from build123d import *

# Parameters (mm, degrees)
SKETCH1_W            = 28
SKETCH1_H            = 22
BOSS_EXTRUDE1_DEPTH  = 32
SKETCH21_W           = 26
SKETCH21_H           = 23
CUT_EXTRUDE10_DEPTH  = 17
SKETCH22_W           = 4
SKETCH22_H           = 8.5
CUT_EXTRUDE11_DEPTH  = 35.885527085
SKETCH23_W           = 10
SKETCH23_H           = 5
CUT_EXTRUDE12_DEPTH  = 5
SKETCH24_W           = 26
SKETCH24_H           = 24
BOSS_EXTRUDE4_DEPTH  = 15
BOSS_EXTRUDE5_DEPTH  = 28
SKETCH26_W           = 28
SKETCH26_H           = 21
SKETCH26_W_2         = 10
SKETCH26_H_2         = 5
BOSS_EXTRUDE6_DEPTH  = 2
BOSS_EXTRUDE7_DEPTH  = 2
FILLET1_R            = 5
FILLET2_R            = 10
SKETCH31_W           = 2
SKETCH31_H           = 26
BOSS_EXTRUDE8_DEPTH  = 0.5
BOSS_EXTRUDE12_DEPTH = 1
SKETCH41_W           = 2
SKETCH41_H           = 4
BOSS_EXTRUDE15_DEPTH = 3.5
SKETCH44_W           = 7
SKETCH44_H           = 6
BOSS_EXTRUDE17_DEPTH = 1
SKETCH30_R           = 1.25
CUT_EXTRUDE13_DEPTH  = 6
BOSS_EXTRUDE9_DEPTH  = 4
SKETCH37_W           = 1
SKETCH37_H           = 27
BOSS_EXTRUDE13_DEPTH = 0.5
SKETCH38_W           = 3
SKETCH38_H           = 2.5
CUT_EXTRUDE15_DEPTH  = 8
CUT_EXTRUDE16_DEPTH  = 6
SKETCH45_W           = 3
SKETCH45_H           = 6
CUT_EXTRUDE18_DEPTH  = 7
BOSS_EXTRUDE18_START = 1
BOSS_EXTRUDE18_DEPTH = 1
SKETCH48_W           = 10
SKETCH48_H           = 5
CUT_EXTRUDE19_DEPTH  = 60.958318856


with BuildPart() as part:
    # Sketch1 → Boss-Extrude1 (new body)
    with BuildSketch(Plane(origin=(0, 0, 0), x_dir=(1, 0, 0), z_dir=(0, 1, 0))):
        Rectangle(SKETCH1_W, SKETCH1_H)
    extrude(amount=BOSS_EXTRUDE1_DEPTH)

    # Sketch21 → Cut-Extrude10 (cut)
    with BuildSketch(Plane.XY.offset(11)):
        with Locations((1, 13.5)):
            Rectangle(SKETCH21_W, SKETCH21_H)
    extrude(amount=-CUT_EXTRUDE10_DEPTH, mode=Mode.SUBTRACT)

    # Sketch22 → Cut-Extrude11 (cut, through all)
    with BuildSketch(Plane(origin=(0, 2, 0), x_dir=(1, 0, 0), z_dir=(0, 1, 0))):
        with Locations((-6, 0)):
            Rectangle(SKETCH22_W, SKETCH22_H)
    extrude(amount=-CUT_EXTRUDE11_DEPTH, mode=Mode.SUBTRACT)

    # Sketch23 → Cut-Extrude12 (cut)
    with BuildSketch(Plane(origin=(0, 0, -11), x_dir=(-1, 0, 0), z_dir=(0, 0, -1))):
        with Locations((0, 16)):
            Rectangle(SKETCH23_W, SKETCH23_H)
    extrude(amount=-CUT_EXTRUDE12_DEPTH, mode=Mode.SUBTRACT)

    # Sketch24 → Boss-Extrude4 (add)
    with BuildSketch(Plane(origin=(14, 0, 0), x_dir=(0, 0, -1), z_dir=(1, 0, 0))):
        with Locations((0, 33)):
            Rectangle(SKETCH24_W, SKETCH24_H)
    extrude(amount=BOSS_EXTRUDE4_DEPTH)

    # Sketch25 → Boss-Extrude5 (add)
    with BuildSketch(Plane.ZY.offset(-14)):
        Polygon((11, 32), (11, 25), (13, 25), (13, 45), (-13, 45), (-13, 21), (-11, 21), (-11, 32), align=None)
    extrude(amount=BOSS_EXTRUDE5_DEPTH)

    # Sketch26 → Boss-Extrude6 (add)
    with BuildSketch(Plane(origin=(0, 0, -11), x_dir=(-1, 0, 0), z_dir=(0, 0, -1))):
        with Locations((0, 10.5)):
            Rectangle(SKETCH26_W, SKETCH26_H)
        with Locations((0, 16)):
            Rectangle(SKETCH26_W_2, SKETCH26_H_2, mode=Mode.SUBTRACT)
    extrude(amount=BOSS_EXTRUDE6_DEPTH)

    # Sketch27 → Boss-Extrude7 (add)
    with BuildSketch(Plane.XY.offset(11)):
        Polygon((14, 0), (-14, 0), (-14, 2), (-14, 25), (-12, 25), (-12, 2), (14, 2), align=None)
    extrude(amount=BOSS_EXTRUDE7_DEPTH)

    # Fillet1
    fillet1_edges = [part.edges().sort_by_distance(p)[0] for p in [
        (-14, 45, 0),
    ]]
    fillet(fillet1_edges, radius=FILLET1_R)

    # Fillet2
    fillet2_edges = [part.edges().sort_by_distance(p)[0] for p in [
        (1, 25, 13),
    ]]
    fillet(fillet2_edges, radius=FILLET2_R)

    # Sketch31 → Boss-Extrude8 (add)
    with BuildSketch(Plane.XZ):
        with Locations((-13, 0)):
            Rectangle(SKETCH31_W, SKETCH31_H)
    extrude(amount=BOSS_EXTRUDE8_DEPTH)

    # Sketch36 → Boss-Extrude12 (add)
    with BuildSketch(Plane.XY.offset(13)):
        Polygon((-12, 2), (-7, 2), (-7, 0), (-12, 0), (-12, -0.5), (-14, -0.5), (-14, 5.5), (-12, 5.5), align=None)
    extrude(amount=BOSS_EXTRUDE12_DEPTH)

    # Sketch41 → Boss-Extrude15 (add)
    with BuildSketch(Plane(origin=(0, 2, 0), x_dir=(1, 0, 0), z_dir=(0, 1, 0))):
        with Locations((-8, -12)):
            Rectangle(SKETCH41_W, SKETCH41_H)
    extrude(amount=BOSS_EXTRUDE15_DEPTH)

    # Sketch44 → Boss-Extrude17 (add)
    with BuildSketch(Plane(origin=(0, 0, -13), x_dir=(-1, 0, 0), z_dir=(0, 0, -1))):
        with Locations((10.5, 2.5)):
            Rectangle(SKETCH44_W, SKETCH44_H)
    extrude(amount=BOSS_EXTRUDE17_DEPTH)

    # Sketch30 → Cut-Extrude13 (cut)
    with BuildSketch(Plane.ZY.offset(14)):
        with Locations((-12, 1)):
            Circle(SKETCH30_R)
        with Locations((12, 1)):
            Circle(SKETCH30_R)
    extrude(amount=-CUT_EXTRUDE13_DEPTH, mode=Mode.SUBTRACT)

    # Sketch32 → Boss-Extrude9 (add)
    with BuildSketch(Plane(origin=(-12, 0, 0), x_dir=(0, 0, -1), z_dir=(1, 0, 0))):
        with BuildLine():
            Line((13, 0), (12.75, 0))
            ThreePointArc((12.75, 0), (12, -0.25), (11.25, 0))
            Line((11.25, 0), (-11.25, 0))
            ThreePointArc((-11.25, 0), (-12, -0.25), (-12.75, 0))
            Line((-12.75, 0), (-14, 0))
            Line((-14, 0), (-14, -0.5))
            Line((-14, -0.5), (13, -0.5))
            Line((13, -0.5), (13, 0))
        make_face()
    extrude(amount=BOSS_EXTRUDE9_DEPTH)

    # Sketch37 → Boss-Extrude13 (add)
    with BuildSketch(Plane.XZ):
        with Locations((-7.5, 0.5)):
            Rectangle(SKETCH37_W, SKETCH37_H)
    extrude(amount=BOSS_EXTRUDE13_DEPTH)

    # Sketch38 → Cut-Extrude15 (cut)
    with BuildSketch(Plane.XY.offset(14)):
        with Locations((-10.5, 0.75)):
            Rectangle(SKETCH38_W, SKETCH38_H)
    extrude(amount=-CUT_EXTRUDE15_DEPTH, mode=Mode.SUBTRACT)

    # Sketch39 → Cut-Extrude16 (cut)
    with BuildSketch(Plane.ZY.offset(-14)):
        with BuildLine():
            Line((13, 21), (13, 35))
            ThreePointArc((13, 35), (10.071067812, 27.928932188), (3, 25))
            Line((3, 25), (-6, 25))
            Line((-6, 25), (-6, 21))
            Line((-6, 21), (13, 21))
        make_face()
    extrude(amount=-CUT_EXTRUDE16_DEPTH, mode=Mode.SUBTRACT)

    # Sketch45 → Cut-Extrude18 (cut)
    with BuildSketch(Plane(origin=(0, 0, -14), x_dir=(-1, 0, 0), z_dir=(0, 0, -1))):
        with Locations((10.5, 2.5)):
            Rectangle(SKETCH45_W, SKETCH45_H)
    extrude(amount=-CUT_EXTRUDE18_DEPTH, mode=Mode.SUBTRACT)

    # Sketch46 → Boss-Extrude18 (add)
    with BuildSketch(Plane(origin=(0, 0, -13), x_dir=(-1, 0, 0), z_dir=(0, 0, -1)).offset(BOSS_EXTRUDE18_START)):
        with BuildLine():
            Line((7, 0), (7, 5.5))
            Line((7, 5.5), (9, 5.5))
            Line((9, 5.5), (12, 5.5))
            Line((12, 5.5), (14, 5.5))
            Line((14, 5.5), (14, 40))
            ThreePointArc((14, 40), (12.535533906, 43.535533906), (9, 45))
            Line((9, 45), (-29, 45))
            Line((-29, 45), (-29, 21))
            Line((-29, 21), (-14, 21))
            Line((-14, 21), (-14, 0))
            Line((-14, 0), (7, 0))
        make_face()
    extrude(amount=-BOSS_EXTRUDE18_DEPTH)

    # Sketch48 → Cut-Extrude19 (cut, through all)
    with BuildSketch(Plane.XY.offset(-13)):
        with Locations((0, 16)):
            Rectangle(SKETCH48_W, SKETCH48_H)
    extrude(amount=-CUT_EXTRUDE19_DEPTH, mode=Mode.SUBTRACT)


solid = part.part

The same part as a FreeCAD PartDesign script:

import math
import FreeCAD as App
import Part
import Sketcher
from FreeCAD import Vector


def edges_at(feature, points):
    """Names of the edges that pass closest to the given points."""
    edges = feature.Shape.Edges
    near = lambda p: min(range(len(edges)), key=lambda i: edges[i].distToShape(Part.Vertex(*p))[0])
    return sorted({f"Edge{near(p) + 1}" for p in points})

doc = App.newDocument("Part")
body = doc.addObject("PartDesign::Body", "Body")

sketch1 = body.newObject("Sketcher::SketchObject", "Sketch")
sketch1.AttachmentSupport = (doc.getObject("XZ_Plane"), [""])
sketch1.MapMode = "FlatFace"
sketch1.addGeometry(Part.LineSegment(Vector(-14, -11, 0), Vector(-14, 11, 0)), False)
sketch1.addGeometry(Part.LineSegment(Vector(-14, 11, 0), Vector(14, 11, 0)), False)
sketch1.addGeometry(Part.LineSegment(Vector(14, 11, 0), Vector(14, -11, 0)), False)
sketch1.addGeometry(Part.LineSegment(Vector(14, -11, 0), Vector(-14, -11, 0)), False)
sketch1.addConstraint(Sketcher.Constraint("Coincident", 0, 2, 1, 1))
sketch1.addConstraint(Sketcher.Constraint("Coincident", 1, 2, 2, 1))
sketch1.addConstraint(Sketcher.Constraint("Coincident", 2, 2, 3, 1))
sketch1.addConstraint(Sketcher.Constraint("Coincident", 3, 2, 0, 1))
sketch1.addConstraint(Sketcher.Constraint("Vertical", 0))
sketch1.addConstraint(Sketcher.Constraint("Horizontal", 1))
sketch1.addConstraint(Sketcher.Constraint("Vertical", 2))
sketch1.addConstraint(Sketcher.Constraint("Horizontal", 3))
sketch1.addConstraint(Sketcher.Constraint("Symmetric", 0, 2, 2, 2, -1, 1))
sketch1.addConstraint(Sketcher.Constraint("DistanceX", 1, 1, 1, 2, 28.0))
sketch1.addConstraint(Sketcher.Constraint("DistanceY", 0, 1, 0, 2, 22.0))
pad1 = body.newObject("PartDesign::Pad", "Pad")
pad1.Profile = sketch1
pad1.Length = 32
pad1.Reversed = True

sketch2 = body.newObject("Sketcher::SketchObject", "Sketch001")
sketch2.AttachmentSupport = (doc.getObject("XY_Plane"), [""])
sketch2.MapMode = "FlatFace"
sketch2.AttachmentOffset = App.Placement(Vector(0, 0, 11), App.Rotation())
sketch2.addGeometry(Part.LineSegment(Vector(-12, 25, 0), Vector(-12, 2, 0)), False)
sketch2.addGeometry(Part.LineSegment(Vector(-12, 2, 0), Vector(14, 2, 0)), False)
sketch2.addGeometry(Part.LineSegment(Vector(14, 2, 0), Vector(14, 25, 0)), False)
sketch2.addGeometry(Part.LineSegment(Vector(14, 25, 0), Vector(-12, 25, 0)), False)
sketch2.addConstraint(Sketcher.Constraint("Coincident", 0, 2, 1, 1))
sketch2.addConstraint(Sketcher.Constraint("Coincident", 1, 2, 2, 1))
sketch2.addConstraint(Sketcher.Constraint("Coincident", 2, 2, 3, 1))
sketch2.addConstraint(Sketcher.Constraint("Coincident", 3, 2, 0, 1))
sketch2.addConstraint(Sketcher.Constraint("Vertical", 0))
sketch2.addConstraint(Sketcher.Constraint("Horizontal", 1))
sketch2.addConstraint(Sketcher.Constraint("Vertical", 2))
sketch2.addConstraint(Sketcher.Constraint("Horizontal", 3))
sketch2.addConstraint(Sketcher.Constraint("DistanceX", 1, 1, 1, 2, 26.0))
sketch2.addConstraint(Sketcher.Constraint("DistanceY", 0, 2, 0, 1, 23.0))
sketch2.addConstraint(Sketcher.Constraint("DistanceX", 0, 2, -1, 1, 12.0))
sketch2.addConstraint(Sketcher.Constraint("DistanceY", -1, 1, 0, 2, 2.0))
pocket1 = body.newObject("PartDesign::Pocket", "Pocket")
pocket1.Profile = sketch2
pocket1.Length = 17

sketch3 = body.newObject("Sketcher::SketchObject", "Sketch002")
sketch3.AttachmentSupport = (doc.getObject("XZ_Plane"), [""])
sketch3.MapMode = "FlatFace"
sketch3.AttachmentOffset = App.Placement(Vector(0, 0, -2), App.Rotation())
sketch3.addGeometry(Part.LineSegment(Vector(-8, -4.2, 0), Vector(-8, 4.2, 0)), False)
sketch3.addGeometry(Part.LineSegment(Vector(-8, 4.2, 0), Vector(-4, 4.2, 0)), False)
sketch3.addGeometry(Part.LineSegment(Vector(-4, 4.2, 0), Vector(-4, -4.2, 0)), False)
sketch3.addGeometry(Part.LineSegment(Vector(-4, -4.2, 0), Vector(-8, -4.2, 0)), False)
sketch3.addConstraint(Sketcher.Constraint("Coincident", 0, 2, 1, 1))
sketch3.addConstraint(Sketcher.Constraint("Coincident", 1, 2, 2, 1))
sketch3.addConstraint(Sketcher.Constraint("Coincident", 2, 2, 3, 1))
sketch3.addConstraint(Sketcher.Constraint("Coincident", 3, 2, 0, 1))
sketch3.addConstraint(Sketcher.Constraint("Vertical", 0))
sketch3.addConstraint(Sketcher.Constraint("Horizontal", 1))
sketch3.addConstraint(Sketcher.Constraint("Vertical", 2))
sketch3.addConstraint(Sketcher.Constraint("Horizontal", 3))
sketch3.addConstraint(Sketcher.Constraint("DistanceX", 1, 1, 1, 2, 4.0))
sketch3.addConstraint(Sketcher.Constraint("DistanceY", 0, 1, 0, 2, 8.5))
sketch3.addConstraint(Sketcher.Constraint("DistanceX", 0, 2, -1, 1, 8.0))
sketch3.addConstraint(Sketcher.Constraint("DistanceY", -1, 1, 0, 2, 4.25))
pocket2 = body.newObject("PartDesign::Pocket", "Pocket001")
pocket2.Profile = sketch3
pocket2.Type = "ThroughAll"
pocket2.Reversed = True

sketch4 = body.newObject("Sketcher::SketchObject", "Sketch003")
sketch4.AttachmentSupport = (doc.getObject("XY_Plane"), [""])
sketch4.MapMode = "FlatFace"
sketch4.AttachmentOffset = App.Placement(Vector(0, 0, -11), App.Rotation())
sketch4.addGeometry(Part.LineSegment(Vector(5, 18, 0), Vector(5, 14, 0)), False)
sketch4.addGeometry(Part.LineSegment(Vector(5, 14, 0), Vector(-5, 14, 0)), False)
sketch4.addGeometry(Part.LineSegment(Vector(-5, 14, 0), Vector(-5, 18, 0)), False)
sketch4.addGeometry(Part.LineSegment(Vector(-5, 18, 0), Vector(5, 18, 0)), False)
sketch4.addConstraint(Sketcher.Constraint("Coincident", 0, 2, 1, 1))
sketch4.addConstraint(Sketcher.Constraint("Coincident", 1, 2, 2, 1))
sketch4.addConstraint(Sketcher.Constraint("Coincident", 2, 2, 3, 1))
sketch4.addConstraint(Sketcher.Constraint("Coincident", 3, 2, 0, 1))
sketch4.addConstraint(Sketcher.Constraint("Vertical", 0))
sketch4.addConstraint(Sketcher.Constraint("Horizontal", 1))
sketch4.addConstraint(Sketcher.Constraint("Vertical", 2))
sketch4.addConstraint(Sketcher.Constraint("Horizontal", 3))
sketch4.addConstraint(Sketcher.Constraint("DistanceX", 1, 2, 1, 1, 10.0))
sketch4.addConstraint(Sketcher.Constraint("DistanceY", 0, 2, 0, 1, 5.0))
sketch4.addConstraint(Sketcher.Constraint("DistanceX", -1, 1, 0, 2, 5.0))
sketch4.addConstraint(Sketcher.Constraint("DistanceY", -1, 1, 0, 2, 13.5))
pocket3 = body.newObject("PartDesign::Pocket", "Pocket002")
pocket3.Profile = sketch4
pocket3.Length = 5
pocket3.Reversed = True

sketch5 = body.newObject("Sketcher::SketchObject", "Sketch004")
sketch5.AttachmentSupport = (doc.getObject("YZ_Plane"), [""])
sketch5.MapMode = "FlatFace"
sketch5.AttachmentOffset = App.Placement(Vector(0, 0, 14), App.Rotation())
sketch5.addGeometry(Part.LineSegment(Vector(45, 13, 0), Vector(21, 13, 0)), False)
sketch5.addGeometry(Part.LineSegment(Vector(21, 13, 0), Vector(21, -13, 0)), False)
sketch5.addGeometry(Part.LineSegment(Vector(21, -13, 0), Vector(45, -13, 0)), False)
sketch5.addGeometry(Part.LineSegment(Vector(45, -13, 0), Vector(45, 13, 0)), False)
sketch5.addConstraint(Sketcher.Constraint("Coincident", 0, 2, 1, 1))
sketch5.addConstraint(Sketcher.Constraint("Coincident", 1, 2, 2, 1))
sketch5.addConstraint(Sketcher.Constraint("Coincident", 2, 2, 3, 1))
sketch5.addConstraint(Sketcher.Constraint("Coincident", 3, 2, 0, 1))
sketch5.addConstraint(Sketcher.Constraint("Horizontal", 0))
sketch5.addConstraint(Sketcher.Constraint("Vertical", 1))
sketch5.addConstraint(Sketcher.Constraint("Horizontal", 2))
sketch5.addConstraint(Sketcher.Constraint("Vertical", 3))
sketch5.addConstraint(Sketcher.Constraint("DistanceX", 0, 2, 0, 1, 24.0))
sketch5.addConstraint(Sketcher.Constraint("DistanceY", 1, 2, 1, 1, 26.0))
sketch5.addConstraint(Sketcher.Constraint("DistanceX", -1, 1, 0, 2, 21.0))
sketch5.addConstraint(Sketcher.Constraint("DistanceY", -1, 1, 0, 2, 13.0))
pad2 = body.newObject("PartDesign::Pad", "Pad001")
pad2.Profile = sketch5
pad2.Length = 15

sketch6 = body.newObject("Sketcher::SketchObject", "Sketch005")
sketch6.AttachmentSupport = (doc.getObject("YZ_Plane"), [""])
sketch6.MapMode = "FlatFace"
sketch6.AttachmentOffset = App.Placement(Vector(0, 0, 14), App.Rotation())
sketch6.addGeometry(Part.LineSegment(Vector(32, 11, 0), Vector(25, 11, 0)), False)
sketch6.addGeometry(Part.LineSegment(Vector(25, 11, 0), Vector(25, 13, 0)), False)
sketch6.addGeometry(Part.LineSegment(Vector(25, 13, 0), Vector(45, 13, 0)), False)
sketch6.addGeometry(Part.LineSegment(Vector(45, 13, 0), Vector(45, -13, 0)), False)
sketch6.addGeometry(Part.LineSegment(Vector(45, -13, 0), Vector(21, -13, 0)), False)
sketch6.addGeometry(Part.LineSegment(Vector(21, -13, 0), Vector(21, -11, 0)), False)
sketch6.addGeometry(Part.LineSegment(Vector(21, -11, 0), Vector(32, -11, 0)), False)
sketch6.addGeometry(Part.LineSegment(Vector(32, -11, 0), Vector(32, 11, 0)), False)
sketch6.addConstraint(Sketcher.Constraint("Coincident", 0, 2, 1, 1))
sketch6.addConstraint(Sketcher.Constraint("Coincident", 1, 2, 2, 1))
sketch6.addConstraint(Sketcher.Constraint("Coincident", 2, 2, 3, 1))
sketch6.addConstraint(Sketcher.Constraint("Coincident", 3, 2, 4, 1))
sketch6.addConstraint(Sketcher.Constraint("Coincident", 4, 2, 5, 1))
sketch6.addConstraint(Sketcher.Constraint("Coincident", 5, 2, 6, 1))
sketch6.addConstraint(Sketcher.Constraint("Coincident", 6, 2, 7, 1))
sketch6.addConstraint(Sketcher.Constraint("Coincident", 7, 2, 0, 1))
sketch6.addConstraint(Sketcher.Constraint("Horizontal", 0))
sketch6.addConstraint(Sketcher.Constraint("Vertical", 1))
sketch6.addConstraint(Sketcher.Constraint("Horizontal", 2))
sketch6.addConstraint(Sketcher.Constraint("Vertical", 3))
sketch6.addConstraint(Sketcher.Constraint("Horizontal", 4))
sketch6.addConstraint(Sketcher.Constraint("Vertical", 5))
sketch6.addConstraint(Sketcher.Constraint("Horizontal", 6))
sketch6.addConstraint(Sketcher.Constraint("Vertical", 7))
sketch6.addConstraint(Sketcher.Constraint("Equal", 1, 5))
sketch6.addConstraint(Sketcher.Constraint("DistanceX", 0, 2, 0, 1, 7.0))
sketch6.addConstraint(Sketcher.Constraint("DistanceX", 2, 1, 2, 2, 20.0))
sketch6.addConstraint(Sketcher.Constraint("DistanceX", 4, 2, 4, 1, 24.0))
sketch6.addConstraint(Sketcher.Constraint("DistanceY", 1, 1, 1, 2, 2.0))
sketch6.addConstraint(Sketcher.Constraint("DistanceY", 3, 2, 3, 1, 26.0))
sketch6.addConstraint(Sketcher.Constraint("DistanceX", -1, 1, 0, 2, 25.0))
sketch6.addConstraint(Sketcher.Constraint("DistanceY", -1, 1, 0, 2, 11.0))
pad3 = body.newObject("PartDesign::Pad", "Pad002")
pad3.Profile = sketch6
pad3.Length = 28
pad3.Reversed = True

sketch7 = body.newObject("Sketcher::SketchObject", "Sketch006")
sketch7.AttachmentSupport = (doc.getObject("XY_Plane"), [""])
sketch7.MapMode = "FlatFace"
sketch7.AttachmentOffset = App.Placement(Vector(0, 0, -11), App.Rotation())
sketch7.addGeometry(Part.LineSegment(Vector(14, 21, 0), Vector(14, 0, 0)), False)
sketch7.addGeometry(Part.LineSegment(Vector(14, 0, 0), Vector(-14, 0, 0)), False)
sketch7.addGeometry(Part.LineSegment(Vector(-14, 0, 0), Vector(-14, 21, 0)), False)
sketch7.addGeometry(Part.LineSegment(Vector(-14, 21, 0), Vector(14, 21, 0)), False)
sketch7.addGeometry(Part.LineSegment(Vector(-5, 14, 0), Vector(5, 14, 0)), False)
sketch7.addGeometry(Part.LineSegment(Vector(5, 14, 0), Vector(5, 18, 0)), False)
sketch7.addGeometry(Part.LineSegment(Vector(5, 18, 0), Vector(-5, 18, 0)), False)
sketch7.addGeometry(Part.LineSegment(Vector(-5, 18, 0), Vector(-5, 14, 0)), False)
sketch7.addConstraint(Sketcher.Constraint("Coincident", 0, 2, 1, 1))
sketch7.addConstraint(Sketcher.Constraint("Coincident", 1, 2, 2, 1))
sketch7.addConstraint(Sketcher.Constraint("Coincident", 2, 2, 3, 1))
sketch7.addConstraint(Sketcher.Constraint("Coincident", 3, 2, 0, 1))
sketch7.addConstraint(Sketcher.Constraint("Coincident", 4, 2, 5, 1))
sketch7.addConstraint(Sketcher.Constraint("Coincident", 5, 2, 6, 1))
sketch7.addConstraint(Sketcher.Constraint("Coincident", 6, 2, 7, 1))
sketch7.addConstraint(Sketcher.Constraint("Coincident", 7, 2, 4, 1))
sketch7.addConstraint(Sketcher.Constraint("Vertical", 0))
sketch7.addConstraint(Sketcher.Constraint("Horizontal", 1))
sketch7.addConstraint(Sketcher.Constraint("Vertical", 2))
sketch7.addConstraint(Sketcher.Constraint("Horizontal", 3))
sketch7.addConstraint(Sketcher.Constraint("Horizontal", 4))
sketch7.addConstraint(Sketcher.Constraint("Vertical", 5))
sketch7.addConstraint(Sketcher.Constraint("Horizontal", 6))
sketch7.addConstraint(Sketcher.Constraint("Vertical", 7))
sketch7.addConstraint(Sketcher.Constraint("Symmetric", 0, 2, 1, 2, -1, 1))
sketch7.addConstraint(Sketcher.Constraint("DistanceX", 1, 2, 1, 1, 28.0))
sketch7.addConstraint(Sketcher.Constraint("DistanceX", 4, 1, 4, 2, 10.0))
sketch7.addConstraint(Sketcher.Constraint("DistanceY", 0, 2, 0, 1, 21.0))
sketch7.addConstraint(Sketcher.Constraint("DistanceY", 5, 1, 5, 2, 5.0))
sketch7.addConstraint(Sketcher.Constraint("DistanceX", -1, 1, 4, 2, 5.0))
sketch7.addConstraint(Sketcher.Constraint("DistanceY", -1, 1, 4, 2, 13.5))
pad4 = body.newObject("PartDesign::Pad", "Pad003")
pad4.Profile = sketch7
pad4.Length = 2
pad4.Reversed = True

sketch8 = body.newObject("Sketcher::SketchObject", "Sketch007")
sketch8.AttachmentSupport = (doc.getObject("XY_Plane"), [""])
sketch8.MapMode = "FlatFace"
sketch8.AttachmentOffset = App.Placement(Vector(0, 0, 11), App.Rotation())
sketch8.addGeometry(Part.LineSegment(Vector(-14, 0, 0), Vector(14, 0, 0)), False)
sketch8.addGeometry(Part.LineSegment(Vector(14, 0, 0), Vector(14, 2, 0)), False)
sketch8.addGeometry(Part.LineSegment(Vector(14, 2, 0), Vector(-12, 2, 0)), False)
sketch8.addGeometry(Part.LineSegment(Vector(-12, 2, 0), Vector(-12, 25, 0)), False)
sketch8.addGeometry(Part.LineSegment(Vector(-12, 25, 0), Vector(-14, 25, 0)), False)
sketch8.addGeometry(Part.LineSegment(Vector(-14, 25, 0), Vector(-14, 0, 0)), False)
sketch8.addConstraint(Sketcher.Constraint("Coincident", 0, 2, 1, 1))
sketch8.addConstraint(Sketcher.Constraint("Coincident", 1, 2, 2, 1))
sketch8.addConstraint(Sketcher.Constraint("Coincident", 2, 2, 3, 1))
sketch8.addConstraint(Sketcher.Constraint("Coincident", 3, 2, 4, 1))
sketch8.addConstraint(Sketcher.Constraint("Coincident", 4, 2, 5, 1))
sketch8.addConstraint(Sketcher.Constraint("Coincident", 5, 2, 0, 1))
sketch8.addConstraint(Sketcher.Constraint("Horizontal", 0))
sketch8.addConstraint(Sketcher.Constraint("Vertical", 1))
sketch8.addConstraint(Sketcher.Constraint("Horizontal", 2))
sketch8.addConstraint(Sketcher.Constraint("Vertical", 3))
sketch8.addConstraint(Sketcher.Constraint("Horizontal", 4))
sketch8.addConstraint(Sketcher.Constraint("Vertical", 5))
sketch8.addConstraint(Sketcher.Constraint("Symmetric", 0, 2, 5, 2, -1, 1))
sketch8.addConstraint(Sketcher.Constraint("Equal", 4, 1))
sketch8.addConstraint(Sketcher.Constraint("DistanceX", 0, 1, 0, 2, 28.0))
sketch8.addConstraint(Sketcher.Constraint("DistanceX", 2, 2, 2, 1, 26.0))
sketch8.addConstraint(Sketcher.Constraint("DistanceY", 3, 1, 3, 2, 23.0))
pad5 = body.newObject("PartDesign::Pad", "Pad004")
pad5.Profile = sketch8
pad5.Length = 2
doc.recompute()

fillet = body.newObject("PartDesign::Fillet", "Fillet")
fillet.Base = (pad5, edges_at(pad5, [(-14, 45, 0)]))
fillet.Radius = 5
doc.recompute()

fillet2 = body.newObject("PartDesign::Fillet", "Fillet001")
fillet2.Base = (fillet, edges_at(fillet, [(1, 25, 13)]))
fillet2.Radius = 10

sketch9 = body.newObject("Sketcher::SketchObject", "Sketch008")
sketch9.AttachmentSupport = (doc.getObject("XZ_Plane"), [""])
sketch9.MapMode = "FlatFace"
sketch9.addGeometry(Part.LineSegment(Vector(-14, 13, 0), Vector(-14, -13, 0)), False)
sketch9.addGeometry(Part.LineSegment(Vector(-14, -13, 0), Vector(-12, -13, 0)), False)
sketch9.addGeometry(Part.LineSegment(Vector(-12, -13, 0), Vector(-12, 13, 0)), False)
sketch9.addGeometry(Part.LineSegment(Vector(-12, 13, 0), Vector(-14, 13, 0)), False)
sketch9.addConstraint(Sketcher.Constraint("Coincident", 0, 2, 1, 1))
sketch9.addConstraint(Sketcher.Constraint("Coincident", 1, 2, 2, 1))
sketch9.addConstraint(Sketcher.Constraint("Coincident", 2, 2, 3, 1))
sketch9.addConstraint(Sketcher.Constraint("Coincident", 3, 2, 0, 1))
sketch9.addConstraint(Sketcher.Constraint("Vertical", 0))
sketch9.addConstraint(Sketcher.Constraint("Horizontal", 1))
sketch9.addConstraint(Sketcher.Constraint("Vertical", 2))
sketch9.addConstraint(Sketcher.Constraint("Horizontal", 3))
sketch9.addConstraint(Sketcher.Constraint("DistanceX", 1, 1, 1, 2, 2.0))
sketch9.addConstraint(Sketcher.Constraint("DistanceY", 0, 2, 0, 1, 26.0))
sketch9.addConstraint(Sketcher.Constraint("DistanceX", 0, 2, -1, 1, 14.0))
sketch9.addConstraint(Sketcher.Constraint("DistanceY", 0, 2, -1, 1, 13.0))
pad6 = body.newObject("PartDesign::Pad", "Pad005")
pad6.Profile = sketch9
pad6.Length = 0.5

sketch10 = body.newObject("Sketcher::SketchObject", "Sketch009")
sketch10.AttachmentSupport = (doc.getObject("XY_Plane"), [""])
sketch10.MapMode = "FlatFace"
sketch10.AttachmentOffset = App.Placement(Vector(0, 0, 13), App.Rotation())
sketch10.addGeometry(Part.LineSegment(Vector(-7, 2, 0), Vector(-12, 2, 0)), False)
sketch10.addGeometry(Part.LineSegment(Vector(-12, 2, 0), Vector(-12, 5.5, 0)), False)
sketch10.addGeometry(Part.LineSegment(Vector(-12, 5.5, 0), Vector(-14, 5.5, 0)), False)
sketch10.addGeometry(Part.LineSegment(Vector(-14, 5.5, 0), Vector(-14, -0.5, 0)), False)
sketch10.addGeometry(Part.LineSegment(Vector(-14, -0.5, 0), Vector(-12, -0.5, 0)), False)
sketch10.addGeometry(Part.LineSegment(Vector(-12, -0.5, 0), Vector(-12, 0, 0)), False)
sketch10.addGeometry(Part.LineSegment(Vector(-12, 0, 0), Vector(-7, 0, 0)), False)
sketch10.addGeometry(Part.LineSegment(Vector(-7, 0, 0), Vector(-7, 2, 0)), False)
sketch10.addConstraint(Sketcher.Constraint("Coincident", 0, 2, 1, 1))
sketch10.addConstraint(Sketcher.Constraint("Coincident", 1, 2, 2, 1))
sketch10.addConstraint(Sketcher.Constraint("Coincident", 2, 2, 3, 1))
sketch10.addConstraint(Sketcher.Constraint("Coincident", 3, 2, 4, 1))
sketch10.addConstraint(Sketcher.Constraint("Coincident", 4, 2, 5, 1))
sketch10.addConstraint(Sketcher.Constraint("Coincident", 5, 2, 6, 1))
sketch10.addConstraint(Sketcher.Constraint("Coincident", 6, 2, 7, 1))
sketch10.addConstraint(Sketcher.Constraint("Coincident", 7, 2, 0, 1))
sketch10.addConstraint(Sketcher.Constraint("Horizontal", 0))
sketch10.addConstraint(Sketcher.Constraint("Vertical", 1))
sketch10.addConstraint(Sketcher.Constraint("Horizontal", 2))
sketch10.addConstraint(Sketcher.Constraint("Vertical", 3))
sketch10.addConstraint(Sketcher.Constraint("Horizontal", 4))
sketch10.addConstraint(Sketcher.Constraint("Vertical", 5))
sketch10.addConstraint(Sketcher.Constraint("Horizontal", 6))
sketch10.addConstraint(Sketcher.Constraint("Vertical", 7))
sketch10.addConstraint(Sketcher.Constraint("PointOnObject", 5, 2, -1))
sketch10.addConstraint(Sketcher.Constraint("Vertical", 1, 2, 4, 2))
sketch10.addConstraint(Sketcher.Constraint("Equal", 4, 7))
sketch10.addConstraint(Sketcher.Constraint("DistanceX", 0, 2, 0, 1, 5.0))
sketch10.addConstraint(Sketcher.Constraint("DistanceX", 2, 2, 2, 1, 2.0))
sketch10.addConstraint(Sketcher.Constraint("DistanceY", 3, 2, 3, 1, 6.0))
sketch10.addConstraint(Sketcher.Constraint("DistanceY", 1, 1, 1, 2, 3.5))
sketch10.addConstraint(Sketcher.Constraint("DistanceX", 0, 2, -1, 1, 12.0))
pad7 = body.newObject("PartDesign::Pad", "Pad006")
pad7.Profile = sketch10
pad7.Length = 1

sketch11 = body.newObject("Sketcher::SketchObject", "Sketch010")
sketch11.AttachmentSupport = (doc.getObject("XZ_Plane"), [""])
sketch11.MapMode = "FlatFace"
sketch11.AttachmentOffset = App.Placement(Vector(0, 0, -2), App.Rotation())
sketch11.addGeometry(Part.LineSegment(Vector(-9, 10, 0), Vector(-9, 14, 0)), False)
sketch11.addGeometry(Part.LineSegment(Vector(-9, 14, 0), Vector(-7, 14, 0)), False)
sketch11.addGeometry(Part.LineSegment(Vector(-7, 14, 0), Vector(-7, 10, 0)), False)
sketch11.addGeometry(Part.LineSegment(Vector(-7, 10, 0), Vector(-9, 10, 0)), False)
sketch11.addConstraint(Sketcher.Constraint("Coincident", 0, 2, 1, 1))
sketch11.addConstraint(Sketcher.Constraint("Coincident", 1, 2, 2, 1))
sketch11.addConstraint(Sketcher.Constraint("Coincident", 2, 2, 3, 1))
sketch11.addConstraint(Sketcher.Constraint("Coincident", 3, 2, 0, 1))
sketch11.addConstraint(Sketcher.Constraint("Vertical", 0))
sketch11.addConstraint(Sketcher.Constraint("Horizontal", 1))
sketch11.addConstraint(Sketcher.Constraint("Vertical", 2))
sketch11.addConstraint(Sketcher.Constraint("Horizontal", 3))
sketch11.addConstraint(Sketcher.Constraint("DistanceX", 1, 1, 1, 2, 2.0))
sketch11.addConstraint(Sketcher.Constraint("DistanceY", 0, 1, 0, 2, 4.0))
sketch11.addConstraint(Sketcher.Constraint("DistanceX", 0, 2, -1, 1, 9.0))
sketch11.addConstraint(Sketcher.Constraint("DistanceY", -1, 1, 0, 2, 14.0))
pad8 = body.newObject("PartDesign::Pad", "Pad007")
pad8.Profile = sketch11
pad8.Length = 3.5
pad8.Reversed = True

sketch12 = body.newObject("Sketcher::SketchObject", "Sketch011")
sketch12.AttachmentSupport = (doc.getObject("XY_Plane"), [""])
sketch12.MapMode = "FlatFace"
sketch12.AttachmentOffset = App.Placement(Vector(0, 0, -13), App.Rotation())
sketch12.addGeometry(Part.LineSegment(Vector(-7, 6, 0), Vector(-7, 0, 0)), False)
sketch12.addGeometry(Part.LineSegment(Vector(-7, 0, 0), Vector(-14, 0, 0)), False)
sketch12.addGeometry(Part.LineSegment(Vector(-14, 0, 0), Vector(-14, 6, 0)), False)
sketch12.addGeometry(Part.LineSegment(Vector(-14, 6, 0), Vector(-7, 6, 0)), False)
sketch12.addConstraint(Sketcher.Constraint("Coincident", 0, 2, 1, 1))
sketch12.addConstraint(Sketcher.Constraint("Coincident", 1, 2, 2, 1))
sketch12.addConstraint(Sketcher.Constraint("Coincident", 2, 2, 3, 1))
sketch12.addConstraint(Sketcher.Constraint("Coincident", 3, 2, 0, 1))
sketch12.addConstraint(Sketcher.Constraint("Vertical", 0))
sketch12.addConstraint(Sketcher.Constraint("Horizontal", 1))
sketch12.addConstraint(Sketcher.Constraint("Vertical", 2))
sketch12.addConstraint(Sketcher.Constraint("Horizontal", 3))
sketch12.addConstraint(Sketcher.Constraint("DistanceX", 1, 2, 1, 1, 7.0))
sketch12.addConstraint(Sketcher.Constraint("DistanceY", 0, 2, 0, 1, 6.0))
sketch12.addConstraint(Sketcher.Constraint("DistanceX", 0, 2, -1, 1, 7.0))
sketch12.addConstraint(Sketcher.Constraint("DistanceY", 0, 2, -1, 1, 0.5))
pad9 = body.newObject("PartDesign::Pad", "Pad008")
pad9.Profile = sketch12
pad9.Length = 1
pad9.Reversed = True

sketch13 = body.newObject("Sketcher::SketchObject", "Sketch012")
sketch13.AttachmentSupport = (doc.getObject("YZ_Plane"), [""])
sketch13.MapMode = "FlatFace"
sketch13.AttachmentOffset = App.Placement(Vector(0, 0, -14), App.Rotation())
sketch13.addGeometry(Part.Circle(Vector(1, -12, 0), Vector(0, 0, 1), 1.2), False)
sketch13.addGeometry(Part.Circle(Vector(1, 12, 0), Vector(0, 0, 1), 1.2), False)
sketch13.addConstraint(Sketcher.Constraint("Equal", 0, 1))
sketch13.addConstraint(Sketcher.Constraint("Symmetric", 0, 3, 1, 3, -1))
sketch13.addConstraint(Sketcher.Constraint("Diameter", 0, 2.5))
sketch13.addConstraint(Sketcher.Constraint("DistanceX", -1, 1, 0, 3, 1.0))
sketch13.addConstraint(Sketcher.Constraint("DistanceY", 0, 3, -1, 1, 12.0))
pocket4 = body.newObject("PartDesign::Pocket", "Pocket003")
pocket4.Profile = sketch13
pocket4.Length = 6
pocket4.Reversed = True

sketch14 = body.newObject("Sketcher::SketchObject", "Sketch013")
sketch14.AttachmentSupport = (doc.getObject("YZ_Plane"), [""])
sketch14.MapMode = "FlatFace"
sketch14.AttachmentOffset = App.Placement(Vector(0, 0, -12), App.Rotation())
sketch14.addGeometry(Part.LineSegment(Vector(0, -13, 0), Vector(0, -12.75, 0)), False)
sketch14.addGeometry(Part.ArcOfCircle(Part.Circle(Vector(1, -12, 0), Vector(0, 0, 1), 1.25), math.radians(143), math.radians(217)), False)
sketch14.addGeometry(Part.LineSegment(Vector(0, -11.25, 0), Vector(0, 11.25, 0)), False)
sketch14.addGeometry(Part.ArcOfCircle(Part.Circle(Vector(1, 12, 0), Vector(0, 0, 1), 1.25), math.radians(143), math.radians(217)), False)
sketch14.addGeometry(Part.LineSegment(Vector(0, 12.75, 0), Vector(0, 14, 0)), False)
sketch14.addGeometry(Part.LineSegment(Vector(0, 14, 0), Vector(-0.5, 14, 0)), False)
sketch14.addGeometry(Part.LineSegment(Vector(-0.5, 14, 0), Vector(-0.5, -13, 0)), False)
sketch14.addGeometry(Part.LineSegment(Vector(-0.5, -13, 0), Vector(0, -13, 0)), False)
sketch14.addConstraint(Sketcher.Constraint("Coincident", 0, 2, 1, 2))
sketch14.addConstraint(Sketcher.Constraint("Coincident", 1, 1, 2, 1))
sketch14.addConstraint(Sketcher.Constraint("Coincident", 2, 2, 3, 2))
sketch14.addConstraint(Sketcher.Constraint("Coincident", 3, 1, 4, 1))
sketch14.addConstraint(Sketcher.Constraint("Coincident", 4, 2, 5, 1))
sketch14.addConstraint(Sketcher.Constraint("Coincident", 5, 2, 6, 1))
sketch14.addConstraint(Sketcher.Constraint("Coincident", 6, 2, 7, 1))
sketch14.addConstraint(Sketcher.Constraint("Coincident", 7, 2, 0, 1))
sketch14.addConstraint(Sketcher.Constraint("Vertical", 0))
sketch14.addConstraint(Sketcher.Constraint("Vertical", 2))
sketch14.addConstraint(Sketcher.Constraint("Vertical", 4))
sketch14.addConstraint(Sketcher.Constraint("Horizontal", 5))
sketch14.addConstraint(Sketcher.Constraint("Vertical", 6))
sketch14.addConstraint(Sketcher.Constraint("Horizontal", 7))
sketch14.addConstraint(Sketcher.Constraint("Equal", 1, 3))
sketch14.addConstraint(Sketcher.Constraint("Symmetric", 1, 1, 2, 2, -1, 1))
sketch14.addConstraint(Sketcher.Constraint("Symmetric", 0, 2, 3, 1, -1, 1))
sketch14.addConstraint(Sketcher.Constraint("PointOnObject", 0, 2, -2))
sketch14.addConstraint(Sketcher.Constraint("DistanceY", 6, 2, 6, 1, 27.0))
sketch14.addConstraint(Sketcher.Constraint("Radius", 1, 1.25))
sketch14.addConstraint(Sketcher.Constraint("DistanceX", 5, 2, 5, 1, 0.5))
sketch14.addConstraint(Sketcher.Constraint("DistanceY", 2, 1, 2, 2, 22.5))
sketch14.addConstraint(Sketcher.Constraint("DistanceX", -1, 1, 1, 3, 1.0))
sketch14.addConstraint(Sketcher.Constraint("DistanceY", -1, 1, 4, 2, 14.0))
pad10 = body.newObject("PartDesign::Pad", "Pad009")
pad10.Profile = sketch14
pad10.Length = 4

sketch15 = body.newObject("Sketcher::SketchObject", "Sketch014")
sketch15.AttachmentSupport = (doc.getObject("XZ_Plane"), [""])
sketch15.MapMode = "FlatFace"
sketch15.addGeometry(Part.LineSegment(Vector(-8, 14, 0), Vector(-8, -13, 0)), False)
sketch15.addGeometry(Part.LineSegment(Vector(-8, -13, 0), Vector(-7, -13, 0)), False)
sketch15.addGeometry(Part.LineSegment(Vector(-7, -13, 0), Vector(-7, 14, 0)), False)
sketch15.addGeometry(Part.LineSegment(Vector(-7, 14, 0), Vector(-8, 14, 0)), False)
sketch15.addConstraint(Sketcher.Constraint("Coincident", 0, 2, 1, 1))
sketch15.addConstraint(Sketcher.Constraint("Coincident", 1, 2, 2, 1))
sketch15.addConstraint(Sketcher.Constraint("Coincident", 2, 2, 3, 1))
sketch15.addConstraint(Sketcher.Constraint("Coincident", 3, 2, 0, 1))
sketch15.addConstraint(Sketcher.Constraint("Vertical", 0))
sketch15.addConstraint(Sketcher.Constraint("Horizontal", 1))
sketch15.addConstraint(Sketcher.Constraint("Vertical", 2))
sketch15.addConstraint(Sketcher.Constraint("Horizontal", 3))
sketch15.addConstraint(Sketcher.Constraint("DistanceX", 1, 1, 1, 2, 1.0))
sketch15.addConstraint(Sketcher.Constraint("DistanceY", 0, 2, 0, 1, 27.0))
sketch15.addConstraint(Sketcher.Constraint("DistanceX", 0, 2, -1, 1, 8.0))
sketch15.addConstraint(Sketcher.Constraint("DistanceY", 0, 2, -1, 1, 13.0))
pad11 = body.newObject("PartDesign::Pad", "Pad010")
pad11.Profile = sketch15
pad11.Length = 0.5

sketch16 = body.newObject("Sketcher::SketchObject", "Sketch015")
sketch16.AttachmentSupport = (doc.getObject("XY_Plane"), [""])
sketch16.MapMode = "FlatFace"
sketch16.AttachmentOffset = App.Placement(Vector(0, 0, 14), App.Rotation())
sketch16.addGeometry(Part.LineSegment(Vector(-12, 2, 0), Vector(-12, -0.5, 0)), False)
sketch16.addGeometry(Part.LineSegment(Vector(-12, -0.5, 0), Vector(-9, -0.5, 0)), False)
sketch16.addGeometry(Part.LineSegment(Vector(-9, -0.5, 0), Vector(-9, 2, 0)), False)
sketch16.addGeometry(Part.LineSegment(Vector(-9, 2, 0), Vector(-12, 2, 0)), False)
sketch16.addConstraint(Sketcher.Constraint("Coincident", 0, 2, 1, 1))
sketch16.addConstraint(Sketcher.Constraint("Coincident", 1, 2, 2, 1))
sketch16.addConstraint(Sketcher.Constraint("Coincident", 2, 2, 3, 1))
sketch16.addConstraint(Sketcher.Constraint("Coincident", 3, 2, 0, 1))
sketch16.addConstraint(Sketcher.Constraint("Vertical", 0))
sketch16.addConstraint(Sketcher.Constraint("Horizontal", 1))
sketch16.addConstraint(Sketcher.Constraint("Vertical", 2))
sketch16.addConstraint(Sketcher.Constraint("Horizontal", 3))
sketch16.addConstraint(Sketcher.Constraint("DistanceX", 1, 1, 1, 2, 3.0))
sketch16.addConstraint(Sketcher.Constraint("DistanceY", 0, 2, 0, 1, 2.5))
sketch16.addConstraint(Sketcher.Constraint("DistanceX", 0, 2, -1, 1, 12.0))
sketch16.addConstraint(Sketcher.Constraint("DistanceY", -1, 1, 2, 2, 2.0))
pocket5 = body.newObject("PartDesign::Pocket", "Pocket004")
pocket5.Profile = sketch16
pocket5.Length = 8

sketch17 = body.newObject("Sketcher::SketchObject", "Sketch016")
sketch17.AttachmentSupport = (doc.getObject("YZ_Plane"), [""])
sketch17.MapMode = "FlatFace"
sketch17.AttachmentOffset = App.Placement(Vector(0, 0, 14), App.Rotation())
sketch17.addGeometry(Part.LineSegment(Vector(21, 13, 0), Vector(35, 13, 0)), False)
sketch17.addGeometry(Part.ArcOfCircle(Part.Circle(Vector(35, 3, 0), Vector(0, 0, 1), 10), math.radians(90), math.radians(180)), False)
sketch17.addGeometry(Part.LineSegment(Vector(25, 3, 0), Vector(25, -6, 0)), False)
sketch17.addGeometry(Part.LineSegment(Vector(25, -6, 0), Vector(21, -6, 0)), False)
sketch17.addGeometry(Part.LineSegment(Vector(21, -6, 0), Vector(21, 13, 0)), False)
sketch17.addConstraint(Sketcher.Constraint("Tangent", 0, 2, 1, 1))
sketch17.addConstraint(Sketcher.Constraint("Tangent", 1, 2, 2, 1))
sketch17.addConstraint(Sketcher.Constraint("Coincident", 2, 2, 3, 1))
sketch17.addConstraint(Sketcher.Constraint("Coincident", 3, 2, 4, 1))
sketch17.addConstraint(Sketcher.Constraint("Coincident", 4, 2, 0, 1))
sketch17.addConstraint(Sketcher.Constraint("Horizontal", 0))
sketch17.addConstraint(Sketcher.Constraint("Vertical", 2))
sketch17.addConstraint(Sketcher.Constraint("Horizontal", 3))
sketch17.addConstraint(Sketcher.Constraint("Vertical", 4))
sketch17.addConstraint(Sketcher.Constraint("Radius", 1, 10.0))
sketch17.addConstraint(Sketcher.Constraint("DistanceX", 0, 1, 0, 2, 14.0))
sketch17.addConstraint(Sketcher.Constraint("DistanceY", 2, 2, 2, 1, 9.0))
sketch17.addConstraint(Sketcher.Constraint("DistanceX", -1, 1, 1, 3, 35.0))
sketch17.addConstraint(Sketcher.Constraint("DistanceY", -1, 1, 1, 3, 3.0))
pocket6 = body.newObject("PartDesign::Pocket", "Pocket005")
pocket6.Profile = sketch17
pocket6.Length = 6
pocket6.Reversed = True

sketch18 = body.newObject("Sketcher::SketchObject", "Sketch017")
sketch18.AttachmentSupport = (doc.getObject("XY_Plane"), [""])
sketch18.MapMode = "FlatFace"
sketch18.AttachmentOffset = App.Placement(Vector(0, 0, -14), App.Rotation())
sketch18.addGeometry(Part.LineSegment(Vector(-9, 5.5, 0), Vector(-9, -0.5, 0)), False)
sketch18.addGeometry(Part.LineSegment(Vector(-9, -0.5, 0), Vector(-12, -0.5, 0)), False)
sketch18.addGeometry(Part.LineSegment(Vector(-12, -0.5, 0), Vector(-12, 5.5, 0)), False)
sketch18.addGeometry(Part.LineSegment(Vector(-12, 5.5, 0), Vector(-9, 5.5, 0)), False)
sketch18.addConstraint(Sketcher.Constraint("Coincident", 0, 2, 1, 1))
sketch18.addConstraint(Sketcher.Constraint("Coincident", 1, 2, 2, 1))
sketch18.addConstraint(Sketcher.Constraint("Coincident", 2, 2, 3, 1))
sketch18.addConstraint(Sketcher.Constraint("Coincident", 3, 2, 0, 1))
sketch18.addConstraint(Sketcher.Constraint("Vertical", 0))
sketch18.addConstraint(Sketcher.Constraint("Horizontal", 1))
sketch18.addConstraint(Sketcher.Constraint("Vertical", 2))
sketch18.addConstraint(Sketcher.Constraint("Horizontal", 3))
sketch18.addConstraint(Sketcher.Constraint("DistanceX", 1, 2, 1, 1, 3.0))
sketch18.addConstraint(Sketcher.Constraint("DistanceY", 0, 2, 0, 1, 6.0))
sketch18.addConstraint(Sketcher.Constraint("DistanceX", 0, 2, -1, 1, 9.0))
sketch18.addConstraint(Sketcher.Constraint("DistanceY", 0, 2, -1, 1, 0.5))
pocket7 = body.newObject("PartDesign::Pocket", "Pocket006")
pocket7.Profile = sketch18
pocket7.Length = 7
pocket7.Reversed = True

sketch19 = body.newObject("Sketcher::SketchObject", "Sketch018")
sketch19.AttachmentSupport = (doc.getObject("XY_Plane"), [""])
sketch19.MapMode = "FlatFace"
sketch19.AttachmentOffset = App.Placement(Vector(0, 0, -14), App.Rotation())
sketch19.addGeometry(Part.LineSegment(Vector(-7, 0, 0), Vector(-7, 6, 0)), False)
sketch19.addGeometry(Part.LineSegment(Vector(-7, 6, 0), Vector(-14, 6, 0)), False)
sketch19.addGeometry(Part.LineSegment(Vector(-14, 6, 0), Vector(-14, 40, 0)), False)
sketch19.addGeometry(Part.ArcOfCircle(Part.Circle(Vector(-9, 40, 0), Vector(0, 0, 1), 5), math.radians(90), math.radians(180)), False)
sketch19.addGeometry(Part.LineSegment(Vector(-9, 45, 0), Vector(29, 45, 0)), False)
sketch19.addGeometry(Part.LineSegment(Vector(29, 45, 0), Vector(29, 21, 0)), False)
sketch19.addGeometry(Part.LineSegment(Vector(29, 21, 0), Vector(14, 21, 0)), False)
sketch19.addGeometry(Part.LineSegment(Vector(14, 21, 0), Vector(14, 0, 0)), False)
sketch19.addGeometry(Part.LineSegment(Vector(14, 0, 0), Vector(-7, 0, 0)), False)
sketch19.addConstraint(Sketcher.Constraint("Coincident", 0, 2, 1, 1))
sketch19.addConstraint(Sketcher.Constraint("Coincident", 1, 2, 2, 1))
sketch19.addConstraint(Sketcher.Constraint("Tangent", 2, 2, 3, 2))
sketch19.addConstraint(Sketcher.Constraint("Tangent", 3, 1, 4, 1))
sketch19.addConstraint(Sketcher.Constraint("Coincident", 4, 2, 5, 1))
sketch19.addConstraint(Sketcher.Constraint("Coincident", 5, 2, 6, 1))
sketch19.addConstraint(Sketcher.Constraint("Coincident", 6, 2, 7, 1))
sketch19.addConstraint(Sketcher.Constraint("Coincident", 7, 2, 8, 1))
sketch19.addConstraint(Sketcher.Constraint("Coincident", 8, 2, 0, 1))
sketch19.addConstraint(Sketcher.Constraint("Vertical", 0))
sketch19.addConstraint(Sketcher.Constraint("Horizontal", 1))
sketch19.addConstraint(Sketcher.Constraint("Vertical", 2))
sketch19.addConstraint(Sketcher.Constraint("Horizontal", 4))
sketch19.addConstraint(Sketcher.Constraint("Vertical", 5))
sketch19.addConstraint(Sketcher.Constraint("Horizontal", 6))
sketch19.addConstraint(Sketcher.Constraint("Vertical", 7))
sketch19.addConstraint(Sketcher.Constraint("Horizontal", 8))
sketch19.addConstraint(Sketcher.Constraint("PointOnObject", 7, 2, -1))
sketch19.addConstraint(Sketcher.Constraint("Equal", 8, 7))
sketch19.addConstraint(Sketcher.Constraint("Radius", 3, 5.0))
sketch19.addConstraint(Sketcher.Constraint("DistanceX", 1, 2, 1, 1, 7.0))
sketch19.addConstraint(Sketcher.Constraint("DistanceX", 4, 1, 4, 2, 38.0))
sketch19.addConstraint(Sketcher.Constraint("DistanceX", 6, 2, 6, 1, 15.0))
sketch19.addConstraint(Sketcher.Constraint("DistanceY", 5, 2, 5, 1, 24.0))
sketch19.addConstraint(Sketcher.Constraint("DistanceY", 0, 1, 0, 2, 5.5))
sketch19.addConstraint(Sketcher.Constraint("DistanceX", 3, 3, -1, 1, 9.0))
pad12 = body.newObject("PartDesign::Pad", "Pad011")
pad12.Profile = sketch19
pad12.Length = 1

sketch20 = body.newObject("Sketcher::SketchObject", "Sketch019")
sketch20.AttachmentSupport = (doc.getObject("XY_Plane"), [""])
sketch20.MapMode = "FlatFace"
sketch20.AttachmentOffset = App.Placement(Vector(0, 0, -13), App.Rotation())
sketch20.addGeometry(Part.LineSegment(Vector(-5, 18, 0), Vector(-5, 14, 0)), False)
sketch20.addGeometry(Part.LineSegment(Vector(-5, 14, 0), Vector(5, 14, 0)), False)
sketch20.addGeometry(Part.LineSegment(Vector(5, 14, 0), Vector(5, 18, 0)), False)
sketch20.addGeometry(Part.LineSegment(Vector(5, 18, 0), Vector(-5, 18, 0)), False)
sketch20.addConstraint(Sketcher.Constraint("Coincident", 0, 2, 1, 1))
sketch20.addConstraint(Sketcher.Constraint("Coincident", 1, 2, 2, 1))
sketch20.addConstraint(Sketcher.Constraint("Coincident", 2, 2, 3, 1))
sketch20.addConstraint(Sketcher.Constraint("Coincident", 3, 2, 0, 1))
sketch20.addConstraint(Sketcher.Constraint("Vertical", 0))
sketch20.addConstraint(Sketcher.Constraint("Horizontal", 1))
sketch20.addConstraint(Sketcher.Constraint("Vertical", 2))
sketch20.addConstraint(Sketcher.Constraint("Horizontal", 3))
sketch20.addConstraint(Sketcher.Constraint("DistanceX", 1, 1, 1, 2, 10.0))
sketch20.addConstraint(Sketcher.Constraint("DistanceY", 0, 2, 0, 1, 5.0))
sketch20.addConstraint(Sketcher.Constraint("DistanceX", 0, 2, -1, 1, 5.0))
sketch20.addConstraint(Sketcher.Constraint("DistanceY", -1, 1, 0, 2, 13.5))
pocket8 = body.newObject("PartDesign::Pocket", "Pocket007")
pocket8.Profile = sketch20
pocket8.Type = "ThroughAll"

doc.recompute()
